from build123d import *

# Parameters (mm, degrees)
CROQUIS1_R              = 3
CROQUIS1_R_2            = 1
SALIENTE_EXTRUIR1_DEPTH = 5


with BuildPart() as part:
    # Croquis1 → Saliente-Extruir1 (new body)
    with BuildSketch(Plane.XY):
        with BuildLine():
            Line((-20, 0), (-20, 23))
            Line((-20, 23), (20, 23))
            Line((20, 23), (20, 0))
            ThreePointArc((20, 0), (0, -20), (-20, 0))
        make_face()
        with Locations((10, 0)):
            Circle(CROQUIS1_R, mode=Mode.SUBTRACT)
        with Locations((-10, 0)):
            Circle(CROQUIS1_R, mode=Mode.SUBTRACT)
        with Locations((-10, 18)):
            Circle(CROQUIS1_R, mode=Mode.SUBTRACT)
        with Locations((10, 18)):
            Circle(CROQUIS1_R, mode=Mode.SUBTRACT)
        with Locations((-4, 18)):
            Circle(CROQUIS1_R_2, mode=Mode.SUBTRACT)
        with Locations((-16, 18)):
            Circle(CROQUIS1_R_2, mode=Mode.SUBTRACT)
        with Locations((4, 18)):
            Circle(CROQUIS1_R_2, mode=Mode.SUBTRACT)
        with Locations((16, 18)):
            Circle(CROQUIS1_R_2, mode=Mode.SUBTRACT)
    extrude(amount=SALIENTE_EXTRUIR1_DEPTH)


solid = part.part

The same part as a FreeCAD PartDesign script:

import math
import FreeCAD as App
import Part
import Sketcher

V = App.Vector
Q = App.Units.Quantity

doc = App.newDocument("Part")
body = doc.addObject("PartDesign::Body", "Body")

# Sketch on XY plane
sketch1 = body.newObject("Sketcher::SketchObject", "Sketch")
sketch1.AttachmentSupport = (doc.getObject("XY_Plane"), [""])
sketch1.MapMode = "FlatFace"
sketch1.addGeometry(Part.LineSegment(V(-20, 23, 0), V(-20, 0, 0)), False)
sketch1.addGeometry(Part.ArcOfCircle(Part.Circle(V(0, 0, 0), V(0, 0, 1), 20), math.radians(180), math.radians(360)), False)
sketch1.addGeometry(Part.LineSegment(V(20, 0, 0), V(20, 23, 0)), False)
sketch1.addGeometry(Part.LineSegment(V(20, 23, 0), V(-20, 23, 0)), False)
sketch1.addGeometry(Part.Circle(V(10, 0, 0), V(0, 0, 1), 3), False)
sketch1.addGeometry(Part.Circle(V(-10, 0, 0), V(0, 0, 1), 3), False)
sketch1.addGeometry(Part.Circle(V(16, 18, 0), V(0, 0, 1), 1), False)
sketch1.addGeometry(Part.Circle(V(10, 18, 0), V(0, 0, 1), 3), False)
sketch1.addGeometry(Part.Circle(V(4, 18, 0), V(0, 0, 1), 1), False)
sketch1.addGeometry(Part.Circle(V(-4, 18, 0), V(0, 0, 1), 1), False)
sketch1.addGeometry(Part.Circle(V(-10, 18, 0), V(0, 0, 1), 3), False)
sketch1.addGeometry(Part.Circle(V(-16, 18, 0), V(0, 0, 1), 1), False)
sketch1.addConstraint(Sketcher.Constraint("Tangent", 0, 2, 1, 1))
sketch1.addConstraint(Sketcher.Constraint("Tangent", 1, 2, 2, 1))
sketch1.addConstraint(Sketcher.Constraint("Coincident", 2, 2, 3, 1))
sketch1.addConstraint(Sketcher.Constraint("Coincident", 3, 2, 0, 1))
sketch1.addConstraint(Sketcher.Constraint("Vertical", 0))
sketch1.addConstraint(Sketcher.Constraint("Vertical", 2))
sketch1.addConstraint(Sketcher.Constraint("Horizontal", 3))
sketch1.addConstraint(Sketcher.Constraint("Coincident", 1, 3, -1, 1))
sketch1.addConstraint(Sketcher.Constraint("Equal", 4, 5))
sketch1.addConstraint(Sketcher.Constraint("Equal", 5, 7))
sketch1.addConstraint(Sketcher.Constraint("Equal", 6, 8))
sketch1.addConstraint(Sketcher.Constraint("Equal", 8, 9))
sketch1.addConstraint(Sketcher.Constraint("Equal", 7, 10))
sketch1.addConstraint(Sketcher.Constraint("Equal", 9, 11))
sketch1.addConstraint(Sketcher.Constraint("Symmetric", 4, 3, 5, 3, -1, 1))
sketch1.addConstraint(Sketcher.Constraint("Symmetric", 8, 3, 9, 3, -2))
sketch1.addConstraint(Sketcher.Constraint("Symmetric", 7, 3, 10, 3, -2))
sketch1.addConstraint(Sketcher.Constraint("Symmetric", 6, 3, 11, 3, -2))
sketch1.addConstraint(Sketcher.Constraint("PointOnObject", 4, 3, -1))
sketch1.addConstraint(Sketcher.Constraint("Horizontal", 6, 3, 7, 3))
sketch1.addConstraint(Sketcher.Constraint("Horizontal", 7, 3, 8, 3))
sketch1.addConstraint(Sketcher.Constraint("Vertical", 4, 3, 7, 3))
sketch1.addConstraint(Sketcher.Constraint("Diameter", 4, Q("6 mm")))
sketch1.addConstraint(Sketcher.Constraint("Diameter", 6, Q("2 mm")))
sketch1.addConstraint(Sketcher.Constraint("Radius", 1, Q("20 mm")))
sketch1.addConstraint(Sketcher.Constraint("DistanceY", 0, 2, 0, 1, Q("23 mm")))
sketch1.addConstraint(Sketcher.Constraint("DistanceX", -1, 1, 4, 3, Q("10 mm")))
sketch1.addConstraint(Sketcher.Constraint("DistanceX", -1, 1, 6, 3, Q("16 mm")))
sketch1.addConstraint(Sketcher.Constraint("DistanceY", -1, 1, 6, 3, Q("18 mm")))
sketch1.addConstraint(Sketcher.Constraint("DistanceX", -1, 1, 8, 3, Q("4 mm")))
pad1 = body.newObject("PartDesign::Pad", "Pad")
pad1.Profile = sketch1
pad1.Length = 5

doc.recompute()
